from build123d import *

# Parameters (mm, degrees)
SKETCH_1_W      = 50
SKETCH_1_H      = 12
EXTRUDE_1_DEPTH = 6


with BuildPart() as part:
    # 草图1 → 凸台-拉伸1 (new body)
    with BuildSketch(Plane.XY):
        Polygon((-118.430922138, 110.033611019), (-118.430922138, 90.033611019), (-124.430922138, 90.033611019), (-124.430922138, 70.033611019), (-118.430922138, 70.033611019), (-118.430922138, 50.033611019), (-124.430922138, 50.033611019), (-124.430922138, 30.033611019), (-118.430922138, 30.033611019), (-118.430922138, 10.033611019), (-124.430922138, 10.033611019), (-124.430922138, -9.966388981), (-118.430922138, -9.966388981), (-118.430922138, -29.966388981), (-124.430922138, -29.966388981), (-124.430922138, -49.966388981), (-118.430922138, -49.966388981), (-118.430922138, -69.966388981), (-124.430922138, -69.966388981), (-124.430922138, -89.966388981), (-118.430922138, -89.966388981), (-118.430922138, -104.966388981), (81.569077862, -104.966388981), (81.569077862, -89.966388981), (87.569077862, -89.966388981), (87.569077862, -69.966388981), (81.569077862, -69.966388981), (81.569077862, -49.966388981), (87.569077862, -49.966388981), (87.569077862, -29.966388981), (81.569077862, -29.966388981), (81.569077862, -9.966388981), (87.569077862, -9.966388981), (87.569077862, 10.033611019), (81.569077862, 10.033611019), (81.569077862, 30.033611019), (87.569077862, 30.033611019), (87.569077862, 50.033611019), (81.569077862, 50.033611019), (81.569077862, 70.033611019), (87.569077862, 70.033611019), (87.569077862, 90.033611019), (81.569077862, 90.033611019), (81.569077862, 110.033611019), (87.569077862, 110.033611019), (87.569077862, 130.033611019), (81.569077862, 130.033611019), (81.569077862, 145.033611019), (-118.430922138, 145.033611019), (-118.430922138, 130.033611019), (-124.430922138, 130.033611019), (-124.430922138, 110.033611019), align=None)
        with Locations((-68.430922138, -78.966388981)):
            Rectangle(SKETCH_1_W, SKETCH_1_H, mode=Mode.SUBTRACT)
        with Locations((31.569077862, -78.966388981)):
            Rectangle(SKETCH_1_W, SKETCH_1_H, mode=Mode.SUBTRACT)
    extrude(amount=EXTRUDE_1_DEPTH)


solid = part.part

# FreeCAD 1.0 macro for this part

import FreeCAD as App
import Part
import Sketcher

V = App.Vector
Q = App.Units.Quantity

doc = App.newDocument("Part")
body = doc.addObject("PartDesign::Body", "Body")

sketch1 = body.newObject("Sketcher::SketchObject", "Sketch")
sketch1.AttachmentSupport = (doc.getObject("XY_Plane"), [""])
sketch1.MapMode = "FlatFace"
sketch1.addGeometry([
    Part.LineSegment(V(-118, 110, 0), V(-118, 90, 0)),
    Part.LineSegment(V(-118, 90, 0), V(-124, 90, 0)),
    Part.LineSegment(V(-124, 90, 0), V(-124, 70, 0)),
    Part.LineSegment(V(-124, 70, 0), V(-118, 70, 0)),
    Part.LineSegment(V(-118, 70, 0), V(-118, 50, 0)),
    Part.LineSegment(V(-118, 50, 0), V(-124, 50, 0)),
    Part.LineSegment(V(-124, 50, 0), V(-124, 30, 0)),
    Part.LineSegment(V(-124, 30, 0), V(-118, 30, 0)),
    Part.LineSegment(V(-118, 30, 0), V(-118, 10, 0)),
    Part.LineSegment(V(-118, 10, 0), V(-124, 10, 0)),
    Part.LineSegment(V(-124, 10, 0), V(-124, -10, 0)),
    Part.LineSegment(V(-124, -10, 0), V(-118, -10, 0)),
    Part.LineSegment(V(-118, -10, 0), V(-118, -30, 0)),
    Part.LineSegment(V(-118, -30, 0), V(-124, -30, 0)),
    Part.LineSegment(V(-124, -30, 0), V(-124, -50, 0)),
    Part.LineSegment(V(-124, -50, 0), V(-118, -50, 0)),
    Part.LineSegment(V(-118, -50, 0), V(-118, -70, 0)),
    Part.LineSegment(V(-118, -70, 0), V(-124, -70, 0)),
    Part.LineSegment(V(-124, -70, 0), V(-124, -90, 0)),
    Part.LineSegment(V(-124, -90, 0), V(-118, -90, 0)),
    Part.LineSegment(V(-118, -90, 0), V(-118, -105, 0)),
    Part.LineSegment(V(-118, -105, 0), V(82, -105, 0)),
    Part.LineSegment(V(82, -105, 0), V(82, -90, 0)),
    Part.LineSegment(V(82, -90, 0), V(88, -90, 0)),
    Part.LineSegment(V(88, -90, 0), V(88, -70, 0)),
    Part.LineSegment(V(88, -70, 0), V(82, -70, 0)),
    Part.LineSegment(V(82, -70, 0), V(82, -50, 0)),
    Part.LineSegment(V(82, -50, 0), V(88, -50, 0)),
    Part.LineSegment(V(88, -50, 0), V(88, -30, 0)),
    Part.LineSegment(V(88, -30, 0), V(82, -30, 0)),
    Part.LineSegment(V(82, -30, 0), V(82, -10, 0)),
    Part.LineSegment(V(82, -10, 0), V(88, -10, 0)),
    Part.LineSegment(V(88, -10, 0), V(88, 10, 0)),
    Part.LineSegment(V(88, 10, 0), V(82, 10, 0)),
    Part.LineSegment(V(82, 10, 0), V(82, 30, 0)),
    Part.LineSegment(V(82, 30, 0), V(88, 30, 0)),
    Part.LineSegment(V(88, 30, 0), V(88, 50, 0)),
    Part.LineSegment(V(88, 50, 0), V(82, 50, 0)),
    Part.LineSegment(V(82, 50, 0), V(82, 70, 0)),
    Part.LineSegment(V(82, 70, 0), V(88, 70, 0)),
    Part.LineSegment(V(88, 70, 0), V(88, 90, 0)),
    Part.LineSegment(V(88, 90, 0), V(82, 90, 0)),
    Part.LineSegment(V(82, 90, 0), V(82, 110, 0)),
    Part.LineSegment(V(82, 110, 0), V(88, 110, 0)),
    Part.LineSegment(V(88, 110, 0), V(88, 130, 0)),
    Part.LineSegment(V(88, 130, 0), V(82, 130, 0)),
    Part.LineSegment(V(82, 130, 0), V(82, 145, 0)),
    Part.LineSegment(V(82, 145, 0), V(-118, 145, 0)),
    Part.LineSegment(V(-118, 145, 0), V(-118, 130, 0)),
    Part.LineSegment(V(-118, 130, 0), V(-124, 130, 0)),
    Part.LineSegment(V(-124, 130, 0), V(-124, 110, 0)),
    Part.LineSegment(V(-124, 110, 0), V(-118, 110, 0)),
    Part.LineSegment(V(-43, -85, 0), V(-93, -85, 0)),
    Part.LineSegment(V(-93, -85, 0), V(-93, -73, 0)),
    Part.LineSegment(V(-93, -73, 0), V(-43, -73, 0)),
    Part.LineSegment(V(-43, -73, 0), V(-43, -85, 0)),
    Part.LineSegment(V(57, -85, 0), V(7, -85, 0)),
    Part.LineSegment(V(7, -85, 0), V(7, -73, 0)),
    Part.LineSegment(V(7, -73, 0), V(57, -73, 0)),
    Part.LineSegment(V(57, -73, 0), V(57, -85, 0)),
], False)
sketch1.addConstraint([
    Sketcher.Constraint("Coincident", 0, 2, 1, 1),
    Sketcher.Constraint("Coincident", 1, 2, 2, 1),
    Sketcher.Constraint("Coincident", 2, 2, 3, 1),
    Sketcher.Constraint("Coincident", 3, 2, 4, 1),
    Sketcher.Constraint("Coincident", 4, 2, 5, 1),
    Sketcher.Constraint("Coincident", 5, 2, 6, 1),
    Sketcher.Constraint("Coincident", 6, 2, 7, 1),
    Sketcher.Constraint("Coincident", 7, 2, 8, 1),
    Sketcher.Constraint("Coincident", 8, 2, 9, 1),
    Sketcher.Constraint("Coincident", 9, 2, 10, 1),
    Sketcher.Constraint("Coincident", 10, 2, 11, 1),
    Sketcher.Constraint("Coincident", 11, 2, 12, 1),
    Sketcher.Constraint("Coincident", 12, 2, 13, 1),
    Sketcher.Constraint("Coincident", 13, 2, 14, 1),
    Sketcher.Constraint("Coincident", 14, 2, 15, 1),
    Sketcher.Constraint("Coincident", 15, 2, 16, 1),
    Sketcher.Constraint("Coincident", 16, 2, 17, 1),
    Sketcher.Constraint("Coincident", 17, 2, 18, 1),
    Sketcher.Constraint("Coincident", 18, 2, 19, 1),
    Sketcher.Constraint("Coincident", 19, 2, 20, 1),
    Sketcher.Constraint("Coincident", 20, 2, 21, 1),
    Sketcher.Constraint("Coincident", 21, 2, 22, 1),
    Sketcher.Constraint("Coincident", 22, 2, 23, 1),
    Sketcher.Constraint("Coincident", 23, 2, 24, 1),
    Sketcher.Constraint("Coincident", 24, 2, 25, 1),
    Sketcher.Constraint("Coincident", 25, 2, 26, 1),
    Sketcher.Constraint("Coincident", 26, 2, 27, 1),
    Sketcher.Constraint("Coincident", 27, 2, 28, 1),
    Sketcher.Constraint("Coincident", 28, 2, 29, 1),
    Sketcher.Constraint("Coincident", 29, 2, 30, 1),
    Sketcher.Constraint("Coincident", 30, 2, 31, 1),
    Sketcher.Constraint("Coincident", 31, 2, 32, 1),
    Sketcher.Constraint("Coincident", 32, 2, 33, 1),
    Sketcher.Constraint("Coincident", 33, 2, 34, 1),
    Sketcher.Constraint("Coincident", 34, 2, 35, 1),
    Sketcher.Constraint("Coincident", 35, 2, 36, 1),
    Sketcher.Constraint("Coincident", 36, 2, 37, 1),
    Sketcher.Constraint("Coincident", 37, 2, 38, 1),
    Sketcher.Constraint("Coincident", 38, 2, 39, 1),
    Sketcher.Constraint("Coincident", 39, 2, 40, 1),
    Sketcher.Constraint("Coincident", 40, 2, 41, 1),
    Sketcher.Constraint("Coincident", 41, 2, 42, 1),
    Sketcher.Constraint("Coincident", 42, 2, 43, 1),
    Sketcher.Constraint("Coincident", 43, 2, 44, 1),
    Sketcher.Constraint("Coincident", 44, 2, 45, 1),
    Sketcher.Constraint("Coincident", 45, 2, 46, 1),
    Sketcher.Constraint("Coincident", 46, 2, 47, 1),
    Sketcher.Constraint("Coincident", 47, 2, 48, 1),
    Sketcher.Constraint("Coincident", 48, 2, 49, 1),
    Sketcher.Constraint("Coincident", 49, 2, 50, 1),
    Sketcher.Constraint("Coincident", 50, 2, 51, 1),
    Sketcher.Constraint("Coincident", 51, 2, 0, 1),
    Sketcher.Constraint("Coincident", 52, 2, 53, 1),
    Sketcher.Constraint("Coincident", 53, 2, 54, 1),
    Sketcher.Constraint("Coincident", 54, 2, 55, 1),
    Sketcher.Constraint("Coincident", 55, 2, 52, 1),
    Sketcher.Constraint("Coincident", 56, 2, 57, 1),
    Sketcher.Constraint("Coincident", 57, 2, 58, 1),
    Sketcher.Constraint("Coincident", 58, 2, 59, 1),
    Sketcher.Constraint("Coincident", 59, 2, 56, 1),
    Sketcher.Constraint("Vertical", 0),
    Sketcher.Constraint("Horizontal", 1),
    Sketcher.Constraint("Vertical", 2),
    Sketcher.Constraint("Horizontal", 3),
    Sketcher.Constraint("Vertical", 4),
    Sketcher.Constraint("Horizontal", 5),
    Sketcher.Constraint("Vertical", 6),
    Sketcher.Constraint("Horizontal", 7),
    Sketcher.Constraint("Vertical", 8),
    Sketcher.Constraint("Horizontal", 9),
    Sketcher.Constraint("Vertical", 10),
    Sketcher.Constraint("Horizontal", 11),
    Sketcher.Constraint("Vertical", 12),
    Sketcher.Constraint("Horizontal", 13),
    Sketcher.Constraint("Vertical", 14),
    Sketcher.Constraint("Horizontal", 15),
    Sketcher.Constraint("Vertical", 16),
    Sketcher.Constraint("Horizontal", 17),
    Sketcher.Constraint("Vertical", 18),
    Sketcher.Constraint("Horizontal", 19),
    Sketcher.Constraint("Vertical", 20),
    Sketcher.Constraint("Horizontal", 21),
    Sketcher.Constraint("Vertical", 22),
    Sketcher.Constraint("Horizontal", 23),
    Sketcher.Constraint("Vertical", 24),
    Sketcher.Constraint("Horizontal", 25),
    Sketcher.Constraint("Vertical", 26),
    Sketcher.Constraint("Horizontal", 27),
    Sketcher.Constraint("Vertical", 28),
    Sketcher.Constraint("Horizontal", 29),
    Sketcher.Constraint("Vertical", 30),
    Sketcher.Constraint("Horizontal", 31),
    Sketcher.Constraint("Vertical", 32),
    Sketcher.Constraint("Horizontal", 33),
    Sketcher.Constraint("Vertical", 34),
    Sketcher.Constraint("Horizontal", 35),
    Sketcher.Constraint("Vertical", 36),
    Sketcher.Constraint("Horizontal", 37),
    Sketcher.Constraint("Vertical", 38),
    Sketcher.Constraint("Horizontal", 39),
    Sketcher.Constraint("Vertical", 40),
    Sketcher.Constraint("Horizontal", 41),
    Sketcher.Constraint("Vertical", 42),
    Sketcher.Constraint("Horizontal", 43),
    Sketcher.Constraint("Vertical", 44),
    Sketcher.Constraint("Horizontal", 45),
    Sketcher.Constraint("Vertical", 46),
    Sketcher.Constraint("Horizontal", 47),
    Sketcher.Constraint("Vertical", 48),
    Sketcher.Constraint("Horizontal", 49),
    Sketcher.Constraint("Vertical", 50),
    Sketcher.Constraint("Horizontal", 51),
    Sketcher.Constraint("Horizontal", 52),
    Sketcher.Constraint("Vertical", 53),
    Sketcher.Constraint("Horizontal", 54),
    Sketcher.Constraint("Vertical", 55),
    Sketcher.Constraint("Horizontal", 56),
    Sketcher.Constraint("Vertical", 57),
    Sketcher.Constraint("Horizontal", 58),
    Sketcher.Constraint("Vertical", 59),
    Sketcher.Constraint("Horizontal", 19, 2, 22, 2),
    Sketcher.Constraint("Horizontal", 17, 2, 24, 2),
    Sketcher.Constraint("Horizontal", 15, 2, 26, 2),
    Sketcher.Constraint("Horizontal", 13, 2, 28, 2),
    Sketcher.Constraint("Horizontal", 11, 2, 30, 2),
    Sketcher.Constraint("Horizontal", 9, 2, 32, 2),
    Sketcher.Constraint("Horizontal", 7, 2, 34, 2),
    Sketcher.Constraint("Horizontal", 5, 2, 36, 2),
    Sketcher.Constraint("Horizontal", 3, 2, 38, 2),
    Sketcher.Constraint("Horizontal", 1, 2, 40, 2),
    Sketcher.Constraint("Horizontal", 45, 2, 48, 2),
    Sketcher.Constraint("Horizontal", 43, 2, 50, 2),
    Sketcher.Constraint("Horizontal", 55, 2, 56, 2),
    Sketcher.Constraint("Horizontal", 54, 2, 57, 2),
    Sketcher.Constraint("Vertical", 0, 2, 3, 2),
    Sketcher.Constraint("Vertical", 2, 2, 5, 2),
    Sketcher.Constraint("Vertical", 4, 2, 7, 2),
    Sketcher.Constraint("Vertical", 6, 2, 9, 2),
    Sketcher.Constraint("Vertical", 8, 2, 11, 2),
    Sketcher.Constraint("Vertical", 10, 2, 13, 2),
    Sketcher.Constraint("Vertical", 12, 2, 15, 2),
    Sketcher.Constraint("Vertical", 14, 2, 17, 2),
    Sketcher.Constraint("Vertical", 16, 2, 19, 2),
    Sketcher.Constraint("Vertical", 22, 2, 25, 2),
    Sketcher.Constraint("Vertical", 24, 2, 27, 2),
    Sketcher.Constraint("Vertical", 26, 2, 29, 2),
    Sketcher.Constraint("Vertical", 28, 2, 31, 2),
    Sketcher.Constraint("Vertical", 30, 2, 33, 2),
    Sketcher.Constraint("Vertical", 32, 2, 35, 2),
    Sketcher.Constraint("Vertical", 34, 2, 37, 2),
    Sketcher.Constraint("Vertical", 36, 2, 39, 2),
    Sketcher.Constraint("Vertical", 38, 2, 41, 2),
    Sketcher.Constraint("Vertical", 40, 2, 43, 2),
    Sketcher.Constraint("Vertical", 42, 2, 45, 2),
    Sketcher.Constraint("Vertical", 20, 2, 47, 2),
    Sketcher.Constraint("Vertical", 18, 2, 49, 2),
    Sketcher.Constraint("Equal", 19, 23),
    Sketcher.Constraint("Equal", 54, 56),
    Sketcher.Constraint("Equal", 0, 2),
    Sketcher.Constraint("Equal", 2, 4),
    Sketcher.Constraint("Equal", 4, 6),
    Sketcher.Constraint("Equal", 6, 8),
    Sketcher.Constraint("Equal", 8, 10),
    Sketcher.Constraint("Equal", 10, 12),
    Sketcher.Constraint("Equal", 12, 14),
    Sketcher.Constraint("Equal", 14, 16),
    Sketcher.Constraint("Equal", 16, 18),
    Sketcher.Constraint("Equal", 42, 44),
    Sketcher.Constraint("Equal", 22, 46),
    Sketcher.Constraint("DistanceX", 1, 2, 1, 1, Q("6 mm")),
    Sketcher.Constraint("DistanceX", 21, 1, 21, 2, Q("200 mm")),
    Sketcher.Constraint("DistanceX", 52, 2, 52, 1, Q("50 mm")),
    Sketcher.Constraint("DistanceY", 0, 2, 0, 1, Q("20 mm")),
    Sketcher.Constraint("DistanceY", 20, 2, 20, 1, Q("15 mm")),
    Sketcher.Constraint("DistanceY", 53, 1, 53, 2, Q("12 mm")),
    Sketcher.Constraint("DistanceX", 19, 2, 52, 2, Q("25 mm")),
    Sketcher.Constraint("DistanceY", 19, 2, 52, 2, Q("5 mm")),
    Sketcher.Constraint("DistanceX", 55, 2, 56, 2, Q("50 mm")),
    Sketcher.Constraint("DistanceY", -1, 1, 0, 2, Q("90.033611 mm")),
    Sketcher.Constraint("DistanceX", 0, 2, -1, 1, Q("118.430922 mm")),
])
pad1 = body.newObject("PartDesign::Pad", "Pad")
pad1.Profile = sketch1
pad1.Length = 6

doc.recompute()
